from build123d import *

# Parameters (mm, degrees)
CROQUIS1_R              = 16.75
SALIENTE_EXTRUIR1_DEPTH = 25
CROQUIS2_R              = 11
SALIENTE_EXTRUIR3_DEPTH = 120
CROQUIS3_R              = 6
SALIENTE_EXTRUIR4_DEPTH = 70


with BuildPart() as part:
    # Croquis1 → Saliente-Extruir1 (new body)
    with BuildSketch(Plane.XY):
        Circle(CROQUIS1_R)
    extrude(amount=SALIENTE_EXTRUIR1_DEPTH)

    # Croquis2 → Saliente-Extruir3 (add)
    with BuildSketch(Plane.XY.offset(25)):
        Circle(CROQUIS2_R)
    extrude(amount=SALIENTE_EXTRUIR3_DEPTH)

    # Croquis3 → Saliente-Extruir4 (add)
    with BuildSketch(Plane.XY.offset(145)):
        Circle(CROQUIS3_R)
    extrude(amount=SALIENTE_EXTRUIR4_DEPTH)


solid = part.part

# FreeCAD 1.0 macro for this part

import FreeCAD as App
import Part
import Sketcher

V = App.Vector
Q = App.Units.Quantity

doc = App.newDocument("Part")
params = doc.addObject("Spreadsheet::Sheet", "Params")
for row, (alias, value) in enumerate([
    ("sketch1_diameter", "33.5 mm"),
    ("pad1_length", "25 mm"),
    ("sketch2_diameter", "22 mm"),
    ("pad2_length", "120 mm"),
    ("sketch3_diameter", "12 mm"),
    ("pad3_length", "70 mm"),
], start=1):
    params.set(f"A{row}", alias)
    params.set(f"B{row}", "=" + value)
    params.setAlias(f"B{row}", alias)

body = doc.addObject("PartDesign::Body", "Body")

# Sketch on XY plane
sketch1 = body.newObject("Sketcher::SketchObject", "Sketch")
sketch1.AttachmentSupport = (doc.getObject("XY_Plane"), [""])
sketch1.MapMode = "FlatFace"
sketch1.addGeometry(Part.Circle(V(0, 0, 0), V(0, 0, 1), 17), False)
sketch1.addConstraint(Sketcher.Constraint("Coincident", 0, 3, -1, 1))
sketch1.addConstraint(Sketcher.Constraint("Diameter", 0, Q("33.5 mm")))
sketch1.setExpression("Constraints[1]", "Params.sketch1_diameter")
pad1 = body.newObject("PartDesign::Pad", "Pad")
pad1.Profile = sketch1
pad1.setExpression("Length", "Params.pad1_length")

# Sketch on XY plane
sketch2 = body.newObject("Sketcher::SketchObject", "Sketch001")
sketch2.AttachmentSupport = (doc.getObject("XY_Plane"), [""])
sketch2.MapMode = "FlatFace"
sketch2.AttachmentOffset = App.Placement(V(0, 0, 25), App.Rotation())
sketch2.addGeometry(Part.Circle(V(0, 0, 0), V(0, 0, 1), 11), False)
sketch2.addConstraint(Sketcher.Constraint("Coincident", 0, 3, -1, 1))
sketch2.addConstraint(Sketcher.Constraint("Diameter", 0, Q("22 mm")))
sketch2.setExpression("Constraints[1]", "Params.sketch2_diameter")
pad2 = body.newObject("PartDesign::Pad", "Pad001")
pad2.Profile = sketch2
pad2.setExpression("Length", "Params.pad2_length")

# Sketch on XY plane
sketch3 = body.newObject("Sketcher::SketchObject", "Sketch002")
sketch3.AttachmentSupport = (doc.getObject("XY_Plane"), [""])
sketch3.MapMode = "FlatFace"
sketch3.AttachmentOffset = App.Placement(V(0, 0, 145), App.Rotation())
sketch3.addGeometry(Part.Circle(V(0, 0, 0), V(0, 0, 1), 6), False)
sketch3.addConstraint(Sketcher.Constraint("Coincident", 0, 3, -1, 1))
sketch3.addConstraint(Sketcher.Constraint("Diameter", 0, Q("12 mm")))
sketch3.setExpression("Constraints[1]", "Params.sketch3_diameter")
pad3 = body.newObject("PartDesign::Pad", "Pad002")
pad3.Profile = sketch3
pad3.setExpression("Length", "Params.pad3_length")

doc.recompute()
